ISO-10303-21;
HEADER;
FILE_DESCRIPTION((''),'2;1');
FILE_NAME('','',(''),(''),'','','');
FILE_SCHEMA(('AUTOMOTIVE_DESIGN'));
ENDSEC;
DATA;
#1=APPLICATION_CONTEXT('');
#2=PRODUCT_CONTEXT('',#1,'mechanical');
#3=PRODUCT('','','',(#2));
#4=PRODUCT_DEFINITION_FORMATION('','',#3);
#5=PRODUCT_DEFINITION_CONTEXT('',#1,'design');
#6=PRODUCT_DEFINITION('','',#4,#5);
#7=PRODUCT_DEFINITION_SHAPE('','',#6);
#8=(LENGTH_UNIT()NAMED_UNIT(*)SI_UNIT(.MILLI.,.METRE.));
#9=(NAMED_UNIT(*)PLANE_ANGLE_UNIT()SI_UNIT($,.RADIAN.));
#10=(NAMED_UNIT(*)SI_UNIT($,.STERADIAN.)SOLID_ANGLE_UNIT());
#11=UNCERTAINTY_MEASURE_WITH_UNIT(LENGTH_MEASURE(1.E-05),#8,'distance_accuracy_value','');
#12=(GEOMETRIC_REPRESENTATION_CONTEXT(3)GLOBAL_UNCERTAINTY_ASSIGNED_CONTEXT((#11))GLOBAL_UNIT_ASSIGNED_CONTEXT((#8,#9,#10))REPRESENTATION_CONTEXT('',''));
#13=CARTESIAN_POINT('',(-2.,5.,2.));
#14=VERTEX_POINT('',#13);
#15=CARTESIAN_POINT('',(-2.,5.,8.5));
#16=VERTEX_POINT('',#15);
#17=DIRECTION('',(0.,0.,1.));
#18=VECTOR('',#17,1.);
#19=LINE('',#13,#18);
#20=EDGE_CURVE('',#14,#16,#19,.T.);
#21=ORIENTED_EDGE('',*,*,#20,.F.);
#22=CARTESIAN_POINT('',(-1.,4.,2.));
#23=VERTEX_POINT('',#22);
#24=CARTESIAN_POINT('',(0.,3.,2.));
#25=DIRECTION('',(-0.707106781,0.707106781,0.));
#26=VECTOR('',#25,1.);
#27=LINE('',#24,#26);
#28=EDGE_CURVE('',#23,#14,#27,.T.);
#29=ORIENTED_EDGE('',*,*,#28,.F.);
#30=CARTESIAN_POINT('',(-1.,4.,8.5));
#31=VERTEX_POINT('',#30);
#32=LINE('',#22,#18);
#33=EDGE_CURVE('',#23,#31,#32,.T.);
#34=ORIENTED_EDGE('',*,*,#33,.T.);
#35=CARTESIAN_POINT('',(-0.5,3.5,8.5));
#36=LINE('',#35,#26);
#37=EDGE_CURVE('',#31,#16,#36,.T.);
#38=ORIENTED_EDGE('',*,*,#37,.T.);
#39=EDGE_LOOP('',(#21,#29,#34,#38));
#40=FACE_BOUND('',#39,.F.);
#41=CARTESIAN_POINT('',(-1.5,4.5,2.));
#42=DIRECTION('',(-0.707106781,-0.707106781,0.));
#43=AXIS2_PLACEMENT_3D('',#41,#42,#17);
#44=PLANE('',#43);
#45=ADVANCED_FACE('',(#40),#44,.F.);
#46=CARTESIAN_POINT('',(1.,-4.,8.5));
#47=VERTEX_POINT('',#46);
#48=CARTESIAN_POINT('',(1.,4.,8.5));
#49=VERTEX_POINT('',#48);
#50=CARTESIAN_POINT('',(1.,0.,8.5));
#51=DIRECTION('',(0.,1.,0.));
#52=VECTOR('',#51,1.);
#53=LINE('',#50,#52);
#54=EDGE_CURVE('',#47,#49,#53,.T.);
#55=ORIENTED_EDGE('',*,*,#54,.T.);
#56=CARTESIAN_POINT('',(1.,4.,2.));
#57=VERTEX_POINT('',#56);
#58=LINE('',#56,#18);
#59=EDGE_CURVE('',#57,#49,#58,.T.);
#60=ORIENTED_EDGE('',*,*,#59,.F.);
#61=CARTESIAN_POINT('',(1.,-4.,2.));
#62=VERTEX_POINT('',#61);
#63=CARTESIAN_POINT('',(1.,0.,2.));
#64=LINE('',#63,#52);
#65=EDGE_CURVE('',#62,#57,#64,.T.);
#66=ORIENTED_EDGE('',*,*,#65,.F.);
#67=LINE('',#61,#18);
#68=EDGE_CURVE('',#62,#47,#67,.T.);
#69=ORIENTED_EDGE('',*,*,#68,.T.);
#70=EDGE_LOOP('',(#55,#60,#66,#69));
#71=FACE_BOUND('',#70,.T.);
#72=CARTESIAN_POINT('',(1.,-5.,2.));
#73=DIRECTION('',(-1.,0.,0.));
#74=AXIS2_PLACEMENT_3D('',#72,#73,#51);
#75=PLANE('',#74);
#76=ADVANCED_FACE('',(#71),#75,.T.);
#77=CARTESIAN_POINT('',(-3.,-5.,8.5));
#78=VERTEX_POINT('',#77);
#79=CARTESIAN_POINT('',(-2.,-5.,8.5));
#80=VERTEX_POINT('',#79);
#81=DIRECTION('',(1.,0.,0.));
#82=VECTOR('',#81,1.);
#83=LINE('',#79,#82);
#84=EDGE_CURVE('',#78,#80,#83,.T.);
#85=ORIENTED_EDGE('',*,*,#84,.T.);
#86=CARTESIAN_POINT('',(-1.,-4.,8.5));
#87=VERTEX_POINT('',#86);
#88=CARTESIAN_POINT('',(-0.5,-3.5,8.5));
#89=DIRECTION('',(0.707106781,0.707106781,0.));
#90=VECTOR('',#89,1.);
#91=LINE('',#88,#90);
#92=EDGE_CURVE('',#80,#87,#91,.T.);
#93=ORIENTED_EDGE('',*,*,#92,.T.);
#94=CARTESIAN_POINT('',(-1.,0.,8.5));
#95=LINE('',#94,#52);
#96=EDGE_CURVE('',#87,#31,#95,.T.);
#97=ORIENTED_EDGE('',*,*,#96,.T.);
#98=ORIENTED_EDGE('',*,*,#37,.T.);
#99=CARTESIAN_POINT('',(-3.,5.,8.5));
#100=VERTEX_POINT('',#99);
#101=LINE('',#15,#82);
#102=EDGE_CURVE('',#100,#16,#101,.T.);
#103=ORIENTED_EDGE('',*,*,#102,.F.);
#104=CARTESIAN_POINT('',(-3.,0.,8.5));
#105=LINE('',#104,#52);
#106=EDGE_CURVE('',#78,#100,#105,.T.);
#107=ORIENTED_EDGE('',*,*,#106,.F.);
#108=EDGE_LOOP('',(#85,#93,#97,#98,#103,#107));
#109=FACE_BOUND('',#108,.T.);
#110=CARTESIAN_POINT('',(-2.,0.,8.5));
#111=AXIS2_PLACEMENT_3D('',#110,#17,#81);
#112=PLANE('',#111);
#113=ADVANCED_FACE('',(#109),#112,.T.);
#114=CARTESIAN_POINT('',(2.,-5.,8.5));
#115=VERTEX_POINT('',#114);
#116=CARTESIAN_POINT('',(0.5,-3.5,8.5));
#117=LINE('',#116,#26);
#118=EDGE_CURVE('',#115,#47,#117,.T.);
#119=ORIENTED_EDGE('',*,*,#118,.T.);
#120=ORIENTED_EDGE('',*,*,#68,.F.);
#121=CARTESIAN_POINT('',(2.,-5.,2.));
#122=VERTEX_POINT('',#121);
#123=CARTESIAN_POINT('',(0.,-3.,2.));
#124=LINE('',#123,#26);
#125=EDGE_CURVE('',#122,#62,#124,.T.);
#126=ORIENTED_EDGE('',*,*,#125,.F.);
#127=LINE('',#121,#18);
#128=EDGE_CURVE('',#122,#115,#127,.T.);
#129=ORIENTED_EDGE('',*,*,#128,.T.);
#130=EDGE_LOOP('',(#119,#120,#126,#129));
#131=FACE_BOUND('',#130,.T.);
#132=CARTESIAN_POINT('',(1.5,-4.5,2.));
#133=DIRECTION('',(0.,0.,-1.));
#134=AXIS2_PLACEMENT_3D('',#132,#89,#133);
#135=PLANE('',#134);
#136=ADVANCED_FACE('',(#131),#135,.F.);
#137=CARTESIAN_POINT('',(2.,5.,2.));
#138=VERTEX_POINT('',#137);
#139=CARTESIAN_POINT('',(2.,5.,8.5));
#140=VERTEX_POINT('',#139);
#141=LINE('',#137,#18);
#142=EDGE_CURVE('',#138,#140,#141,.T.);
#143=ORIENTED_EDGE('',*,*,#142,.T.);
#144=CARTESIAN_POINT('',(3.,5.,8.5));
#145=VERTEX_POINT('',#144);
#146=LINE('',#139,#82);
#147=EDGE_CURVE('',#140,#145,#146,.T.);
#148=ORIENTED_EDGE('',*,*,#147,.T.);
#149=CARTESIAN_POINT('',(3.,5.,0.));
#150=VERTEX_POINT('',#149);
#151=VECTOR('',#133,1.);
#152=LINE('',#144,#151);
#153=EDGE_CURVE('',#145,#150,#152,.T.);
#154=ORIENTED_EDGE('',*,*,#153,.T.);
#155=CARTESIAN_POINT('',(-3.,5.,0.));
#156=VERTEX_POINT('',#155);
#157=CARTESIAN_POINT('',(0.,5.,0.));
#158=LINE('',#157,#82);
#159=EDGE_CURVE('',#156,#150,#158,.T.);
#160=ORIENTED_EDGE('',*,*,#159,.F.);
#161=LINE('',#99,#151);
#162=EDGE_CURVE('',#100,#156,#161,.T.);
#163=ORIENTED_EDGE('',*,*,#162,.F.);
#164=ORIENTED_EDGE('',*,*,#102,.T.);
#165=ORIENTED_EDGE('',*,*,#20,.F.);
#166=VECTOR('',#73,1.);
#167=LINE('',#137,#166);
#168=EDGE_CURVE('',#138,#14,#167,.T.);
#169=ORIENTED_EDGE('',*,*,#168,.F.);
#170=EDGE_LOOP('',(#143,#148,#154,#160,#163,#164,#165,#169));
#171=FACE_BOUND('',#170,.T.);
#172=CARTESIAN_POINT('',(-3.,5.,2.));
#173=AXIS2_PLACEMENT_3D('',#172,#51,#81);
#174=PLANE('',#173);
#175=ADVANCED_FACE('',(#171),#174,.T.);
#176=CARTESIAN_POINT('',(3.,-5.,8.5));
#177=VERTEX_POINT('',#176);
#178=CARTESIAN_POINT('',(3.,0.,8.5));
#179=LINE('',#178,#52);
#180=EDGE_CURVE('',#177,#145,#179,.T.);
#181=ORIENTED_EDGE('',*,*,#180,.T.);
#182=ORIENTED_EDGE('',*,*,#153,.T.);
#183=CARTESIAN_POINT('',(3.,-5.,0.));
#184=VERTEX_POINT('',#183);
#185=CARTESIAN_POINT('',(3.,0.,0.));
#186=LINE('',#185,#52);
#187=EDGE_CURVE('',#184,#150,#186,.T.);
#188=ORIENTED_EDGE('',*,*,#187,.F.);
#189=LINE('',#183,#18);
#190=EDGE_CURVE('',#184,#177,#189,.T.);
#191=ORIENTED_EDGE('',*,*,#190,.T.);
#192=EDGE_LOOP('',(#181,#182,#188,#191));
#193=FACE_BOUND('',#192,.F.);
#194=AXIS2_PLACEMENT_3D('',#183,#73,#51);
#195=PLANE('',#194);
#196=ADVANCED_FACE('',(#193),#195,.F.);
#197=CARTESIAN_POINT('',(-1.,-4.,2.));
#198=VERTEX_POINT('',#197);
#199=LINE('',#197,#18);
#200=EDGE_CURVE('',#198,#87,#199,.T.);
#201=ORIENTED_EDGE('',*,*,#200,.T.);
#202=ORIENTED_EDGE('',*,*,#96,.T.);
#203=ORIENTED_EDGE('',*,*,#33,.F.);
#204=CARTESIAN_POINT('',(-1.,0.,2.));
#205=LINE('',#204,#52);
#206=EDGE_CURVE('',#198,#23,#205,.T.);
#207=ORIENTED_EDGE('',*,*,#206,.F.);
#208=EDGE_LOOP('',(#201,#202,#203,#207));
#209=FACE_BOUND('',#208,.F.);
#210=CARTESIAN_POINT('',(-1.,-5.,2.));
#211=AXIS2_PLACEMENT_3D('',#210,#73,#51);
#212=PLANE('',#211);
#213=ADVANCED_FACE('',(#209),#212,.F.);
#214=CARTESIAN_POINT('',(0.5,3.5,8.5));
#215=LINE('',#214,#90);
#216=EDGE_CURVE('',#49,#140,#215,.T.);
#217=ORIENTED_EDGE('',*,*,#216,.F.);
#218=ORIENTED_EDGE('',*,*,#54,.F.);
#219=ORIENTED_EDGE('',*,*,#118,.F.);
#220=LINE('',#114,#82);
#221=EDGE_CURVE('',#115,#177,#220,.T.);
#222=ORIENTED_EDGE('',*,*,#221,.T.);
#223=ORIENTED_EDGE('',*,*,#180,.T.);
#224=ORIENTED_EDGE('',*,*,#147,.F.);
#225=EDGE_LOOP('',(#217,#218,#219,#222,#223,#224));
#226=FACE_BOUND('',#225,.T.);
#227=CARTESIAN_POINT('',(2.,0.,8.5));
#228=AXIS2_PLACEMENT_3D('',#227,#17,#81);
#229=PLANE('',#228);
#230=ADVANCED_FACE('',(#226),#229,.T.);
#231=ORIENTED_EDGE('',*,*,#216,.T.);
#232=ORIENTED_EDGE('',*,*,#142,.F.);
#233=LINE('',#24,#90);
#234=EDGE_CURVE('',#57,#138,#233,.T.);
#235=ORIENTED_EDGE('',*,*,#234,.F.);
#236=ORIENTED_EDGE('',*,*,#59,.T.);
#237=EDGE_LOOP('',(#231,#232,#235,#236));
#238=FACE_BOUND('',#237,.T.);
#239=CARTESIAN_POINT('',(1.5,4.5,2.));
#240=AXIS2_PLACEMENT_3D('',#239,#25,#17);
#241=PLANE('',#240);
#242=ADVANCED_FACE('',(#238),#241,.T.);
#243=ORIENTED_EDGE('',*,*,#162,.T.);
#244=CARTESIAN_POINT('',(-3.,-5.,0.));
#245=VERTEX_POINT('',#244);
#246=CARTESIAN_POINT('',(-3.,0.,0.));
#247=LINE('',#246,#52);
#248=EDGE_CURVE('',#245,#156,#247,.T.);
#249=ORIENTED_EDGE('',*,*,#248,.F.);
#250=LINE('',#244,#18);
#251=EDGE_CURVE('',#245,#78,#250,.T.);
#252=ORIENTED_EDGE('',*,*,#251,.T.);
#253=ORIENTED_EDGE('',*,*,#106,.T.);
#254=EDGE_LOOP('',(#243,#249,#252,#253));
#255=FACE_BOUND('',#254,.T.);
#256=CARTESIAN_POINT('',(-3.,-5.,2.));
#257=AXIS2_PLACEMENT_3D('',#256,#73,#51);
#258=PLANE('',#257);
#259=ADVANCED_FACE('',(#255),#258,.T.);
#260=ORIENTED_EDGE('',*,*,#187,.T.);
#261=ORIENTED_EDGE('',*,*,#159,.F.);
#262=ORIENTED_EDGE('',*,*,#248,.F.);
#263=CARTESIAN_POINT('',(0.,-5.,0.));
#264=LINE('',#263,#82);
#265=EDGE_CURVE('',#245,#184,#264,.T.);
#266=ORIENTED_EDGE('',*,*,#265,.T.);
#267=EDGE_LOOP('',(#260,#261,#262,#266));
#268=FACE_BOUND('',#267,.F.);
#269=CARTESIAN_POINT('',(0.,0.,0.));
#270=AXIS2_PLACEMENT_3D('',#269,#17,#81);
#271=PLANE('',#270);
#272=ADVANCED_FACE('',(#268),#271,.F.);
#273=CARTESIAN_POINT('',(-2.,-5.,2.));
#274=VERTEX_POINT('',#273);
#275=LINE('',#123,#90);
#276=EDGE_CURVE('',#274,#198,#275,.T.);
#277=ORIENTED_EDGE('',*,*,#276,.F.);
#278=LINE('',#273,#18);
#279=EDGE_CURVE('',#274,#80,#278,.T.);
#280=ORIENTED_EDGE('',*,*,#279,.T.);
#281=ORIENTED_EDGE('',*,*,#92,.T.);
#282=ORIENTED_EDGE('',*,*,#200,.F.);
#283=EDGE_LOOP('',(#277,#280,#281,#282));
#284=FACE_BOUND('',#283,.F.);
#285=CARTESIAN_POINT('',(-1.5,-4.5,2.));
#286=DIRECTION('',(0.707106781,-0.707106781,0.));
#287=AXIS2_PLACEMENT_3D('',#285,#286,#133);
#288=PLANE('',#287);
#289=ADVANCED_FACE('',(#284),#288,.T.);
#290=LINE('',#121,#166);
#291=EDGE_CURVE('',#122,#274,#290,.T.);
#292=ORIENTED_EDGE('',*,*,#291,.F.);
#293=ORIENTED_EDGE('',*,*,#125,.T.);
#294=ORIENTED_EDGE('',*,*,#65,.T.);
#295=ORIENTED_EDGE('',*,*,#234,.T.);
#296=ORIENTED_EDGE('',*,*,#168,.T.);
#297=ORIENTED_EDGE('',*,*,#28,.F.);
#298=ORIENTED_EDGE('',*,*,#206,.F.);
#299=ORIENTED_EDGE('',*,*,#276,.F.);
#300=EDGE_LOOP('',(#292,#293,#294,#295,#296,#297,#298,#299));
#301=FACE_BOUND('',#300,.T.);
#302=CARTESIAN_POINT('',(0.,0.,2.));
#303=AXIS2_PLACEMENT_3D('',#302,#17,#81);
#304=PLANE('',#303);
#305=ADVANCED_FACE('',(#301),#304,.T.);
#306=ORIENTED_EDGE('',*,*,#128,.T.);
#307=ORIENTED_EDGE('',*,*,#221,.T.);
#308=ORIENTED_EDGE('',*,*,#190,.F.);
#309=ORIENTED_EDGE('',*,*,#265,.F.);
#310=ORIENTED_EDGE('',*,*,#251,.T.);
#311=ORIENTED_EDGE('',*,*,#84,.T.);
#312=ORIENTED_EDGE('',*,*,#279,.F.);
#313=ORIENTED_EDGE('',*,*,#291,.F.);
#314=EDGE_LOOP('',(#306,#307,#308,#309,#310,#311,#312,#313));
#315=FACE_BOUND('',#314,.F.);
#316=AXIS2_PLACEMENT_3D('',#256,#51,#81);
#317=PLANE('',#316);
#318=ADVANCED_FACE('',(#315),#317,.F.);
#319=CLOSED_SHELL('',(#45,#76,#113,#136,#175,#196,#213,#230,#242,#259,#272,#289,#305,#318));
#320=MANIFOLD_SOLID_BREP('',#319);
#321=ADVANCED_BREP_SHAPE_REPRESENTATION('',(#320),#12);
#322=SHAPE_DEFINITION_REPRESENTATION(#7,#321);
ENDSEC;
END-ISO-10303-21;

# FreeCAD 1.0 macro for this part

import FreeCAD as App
import Part
import Sketcher


def edges_at(feature, points):
    """Names of the edges that pass closest to the given points."""
    edges = feature.Shape.Edges
    near = lambda p: min(range(len(edges)), key=lambda i: edges[i].distToShape(Part.Vertex(*p))[0])
    return sorted({f"Edge{near(p) + 1}" for p in points})


def add_polygon(sketch, points):
    """Adds a closed chain of lines whose ends are joined by coincident constraints."""
    first, n = sketch.GeometryCount, len(points)
    for a, b in zip(points, points[1:] + points[:1]):
        sketch.addGeometry(Part.LineSegment(App.Vector(*a, 0), App.Vector(*b, 0)), False)
    for i in range(n):
        sketch.addConstraint(Sketcher.Constraint("Coincident", first + i, 2, first + (i + 1) % n, 1))

doc = App.newDocument("Part")
body = doc.addObject("PartDesign::Body", "Body")

# Sketch on XY plane
sketch1 = doc.addObject("Sketcher::SketchObject", "Sketch")
body.addObject(sketch1)
sketch1.AttachmentSupport = (doc.XY_Plane, [""])
sketch1.MapMode = "FlatFace"
add_polygon(sketch1, [(-3, 5), (-3, -5), (3, -5), (3, 5)])  # lines 0-3
sketch1.addConstraint(Sketcher.Constraint("Vertical", 0))
sketch1.addConstraint(Sketcher.Constraint("Horizontal", 1))
sketch1.addConstraint(Sketcher.Constraint("Vertical", 2))
sketch1.addConstraint(Sketcher.Constraint("Horizontal", 3))
sketch1.addConstraint(Sketcher.Constraint("Symmetric", 0, 2, 2, 2, -1, 1))
sketch1.addConstraint(Sketcher.Constraint("DistanceX", 1, 1, 1, 2, 6.0))
sketch1.addConstraint(Sketcher.Constraint("DistanceY", 0, 2, 0, 1, 10.0))
pad1 = doc.addObject("PartDesign::Pad", "Pad")
body.addObject(pad1)
pad1.Profile = sketch1
pad1.Length = 2

# Sketch on XY plane
sketch2 = doc.addObject("Sketcher::SketchObject", "Sketch001")
body.addObject(sketch2)
sketch2.AttachmentSupport = (doc.XY_Plane, [""])
sketch2.MapMode = "FlatFace"
sketch2.AttachmentOffset = App.Placement(App.Vector(0, 0, 2), App.Rotation())
add_polygon(sketch2, [(-3, 5), (-3, -5), (-1, -5), (-1, 5)])  # lines 0-3
add_polygon(sketch2, [(1, 5), (1, -5), (3, -5), (3, 5)])  # lines 4-7
sketch2.addConstraint(Sketcher.Constraint("Vertical", 0))
sketch2.addConstraint(Sketcher.Constraint("Horizontal", 1))
sketch2.addConstraint(Sketcher.Constraint("Vertical", 2))
sketch2.addConstraint(Sketcher.Constraint("Horizontal", 3))
sketch2.addConstraint(Sketcher.Constraint("Vertical", 4))
sketch2.addConstraint(Sketcher.Constraint("Horizontal", 5))
sketch2.addConstraint(Sketcher.Constraint("Vertical", 6))
sketch2.addConstraint(Sketcher.Constraint("Horizontal", 7))
sketch2.addConstraint(Sketcher.Constraint("Symmetric", 2, 2, 4, 2, -1, 1))
sketch2.addConstraint(Sketcher.Constraint("Symmetric", 0, 2, 6, 2, -1, 1))
sketch2.addConstraint(Sketcher.Constraint("Horizontal", 1, 2, 4, 2))
sketch2.addConstraint(Sketcher.Constraint("DistanceX", 1, 1, 1, 2, 2.0))
sketch2.addConstraint(Sketcher.Constraint("DistanceY", 0, 2, 0, 1, 10.0))
sketch2.addConstraint(Sketcher.Constraint("DistanceX", 0, 2, -1, 1, 3.0))
pad2 = doc.addObject("PartDesign::Pad", "Pad001")
body.addObject(pad2)
pad2.Profile = sketch2
pad2.Length = 6.5
doc.recompute()

chamfer = doc.addObject("PartDesign::Chamfer", "Chamfer")
body.addObject(chamfer)
chamfer.Base = (pad2, edges_at(pad2, [
    (-1, -5, 5.25),
    (1, -5, 5.25),
    (-1, 5, 5.25),
    (1, 5, 5.25),
]))
chamfer.Size = 1

doc.recompute()
